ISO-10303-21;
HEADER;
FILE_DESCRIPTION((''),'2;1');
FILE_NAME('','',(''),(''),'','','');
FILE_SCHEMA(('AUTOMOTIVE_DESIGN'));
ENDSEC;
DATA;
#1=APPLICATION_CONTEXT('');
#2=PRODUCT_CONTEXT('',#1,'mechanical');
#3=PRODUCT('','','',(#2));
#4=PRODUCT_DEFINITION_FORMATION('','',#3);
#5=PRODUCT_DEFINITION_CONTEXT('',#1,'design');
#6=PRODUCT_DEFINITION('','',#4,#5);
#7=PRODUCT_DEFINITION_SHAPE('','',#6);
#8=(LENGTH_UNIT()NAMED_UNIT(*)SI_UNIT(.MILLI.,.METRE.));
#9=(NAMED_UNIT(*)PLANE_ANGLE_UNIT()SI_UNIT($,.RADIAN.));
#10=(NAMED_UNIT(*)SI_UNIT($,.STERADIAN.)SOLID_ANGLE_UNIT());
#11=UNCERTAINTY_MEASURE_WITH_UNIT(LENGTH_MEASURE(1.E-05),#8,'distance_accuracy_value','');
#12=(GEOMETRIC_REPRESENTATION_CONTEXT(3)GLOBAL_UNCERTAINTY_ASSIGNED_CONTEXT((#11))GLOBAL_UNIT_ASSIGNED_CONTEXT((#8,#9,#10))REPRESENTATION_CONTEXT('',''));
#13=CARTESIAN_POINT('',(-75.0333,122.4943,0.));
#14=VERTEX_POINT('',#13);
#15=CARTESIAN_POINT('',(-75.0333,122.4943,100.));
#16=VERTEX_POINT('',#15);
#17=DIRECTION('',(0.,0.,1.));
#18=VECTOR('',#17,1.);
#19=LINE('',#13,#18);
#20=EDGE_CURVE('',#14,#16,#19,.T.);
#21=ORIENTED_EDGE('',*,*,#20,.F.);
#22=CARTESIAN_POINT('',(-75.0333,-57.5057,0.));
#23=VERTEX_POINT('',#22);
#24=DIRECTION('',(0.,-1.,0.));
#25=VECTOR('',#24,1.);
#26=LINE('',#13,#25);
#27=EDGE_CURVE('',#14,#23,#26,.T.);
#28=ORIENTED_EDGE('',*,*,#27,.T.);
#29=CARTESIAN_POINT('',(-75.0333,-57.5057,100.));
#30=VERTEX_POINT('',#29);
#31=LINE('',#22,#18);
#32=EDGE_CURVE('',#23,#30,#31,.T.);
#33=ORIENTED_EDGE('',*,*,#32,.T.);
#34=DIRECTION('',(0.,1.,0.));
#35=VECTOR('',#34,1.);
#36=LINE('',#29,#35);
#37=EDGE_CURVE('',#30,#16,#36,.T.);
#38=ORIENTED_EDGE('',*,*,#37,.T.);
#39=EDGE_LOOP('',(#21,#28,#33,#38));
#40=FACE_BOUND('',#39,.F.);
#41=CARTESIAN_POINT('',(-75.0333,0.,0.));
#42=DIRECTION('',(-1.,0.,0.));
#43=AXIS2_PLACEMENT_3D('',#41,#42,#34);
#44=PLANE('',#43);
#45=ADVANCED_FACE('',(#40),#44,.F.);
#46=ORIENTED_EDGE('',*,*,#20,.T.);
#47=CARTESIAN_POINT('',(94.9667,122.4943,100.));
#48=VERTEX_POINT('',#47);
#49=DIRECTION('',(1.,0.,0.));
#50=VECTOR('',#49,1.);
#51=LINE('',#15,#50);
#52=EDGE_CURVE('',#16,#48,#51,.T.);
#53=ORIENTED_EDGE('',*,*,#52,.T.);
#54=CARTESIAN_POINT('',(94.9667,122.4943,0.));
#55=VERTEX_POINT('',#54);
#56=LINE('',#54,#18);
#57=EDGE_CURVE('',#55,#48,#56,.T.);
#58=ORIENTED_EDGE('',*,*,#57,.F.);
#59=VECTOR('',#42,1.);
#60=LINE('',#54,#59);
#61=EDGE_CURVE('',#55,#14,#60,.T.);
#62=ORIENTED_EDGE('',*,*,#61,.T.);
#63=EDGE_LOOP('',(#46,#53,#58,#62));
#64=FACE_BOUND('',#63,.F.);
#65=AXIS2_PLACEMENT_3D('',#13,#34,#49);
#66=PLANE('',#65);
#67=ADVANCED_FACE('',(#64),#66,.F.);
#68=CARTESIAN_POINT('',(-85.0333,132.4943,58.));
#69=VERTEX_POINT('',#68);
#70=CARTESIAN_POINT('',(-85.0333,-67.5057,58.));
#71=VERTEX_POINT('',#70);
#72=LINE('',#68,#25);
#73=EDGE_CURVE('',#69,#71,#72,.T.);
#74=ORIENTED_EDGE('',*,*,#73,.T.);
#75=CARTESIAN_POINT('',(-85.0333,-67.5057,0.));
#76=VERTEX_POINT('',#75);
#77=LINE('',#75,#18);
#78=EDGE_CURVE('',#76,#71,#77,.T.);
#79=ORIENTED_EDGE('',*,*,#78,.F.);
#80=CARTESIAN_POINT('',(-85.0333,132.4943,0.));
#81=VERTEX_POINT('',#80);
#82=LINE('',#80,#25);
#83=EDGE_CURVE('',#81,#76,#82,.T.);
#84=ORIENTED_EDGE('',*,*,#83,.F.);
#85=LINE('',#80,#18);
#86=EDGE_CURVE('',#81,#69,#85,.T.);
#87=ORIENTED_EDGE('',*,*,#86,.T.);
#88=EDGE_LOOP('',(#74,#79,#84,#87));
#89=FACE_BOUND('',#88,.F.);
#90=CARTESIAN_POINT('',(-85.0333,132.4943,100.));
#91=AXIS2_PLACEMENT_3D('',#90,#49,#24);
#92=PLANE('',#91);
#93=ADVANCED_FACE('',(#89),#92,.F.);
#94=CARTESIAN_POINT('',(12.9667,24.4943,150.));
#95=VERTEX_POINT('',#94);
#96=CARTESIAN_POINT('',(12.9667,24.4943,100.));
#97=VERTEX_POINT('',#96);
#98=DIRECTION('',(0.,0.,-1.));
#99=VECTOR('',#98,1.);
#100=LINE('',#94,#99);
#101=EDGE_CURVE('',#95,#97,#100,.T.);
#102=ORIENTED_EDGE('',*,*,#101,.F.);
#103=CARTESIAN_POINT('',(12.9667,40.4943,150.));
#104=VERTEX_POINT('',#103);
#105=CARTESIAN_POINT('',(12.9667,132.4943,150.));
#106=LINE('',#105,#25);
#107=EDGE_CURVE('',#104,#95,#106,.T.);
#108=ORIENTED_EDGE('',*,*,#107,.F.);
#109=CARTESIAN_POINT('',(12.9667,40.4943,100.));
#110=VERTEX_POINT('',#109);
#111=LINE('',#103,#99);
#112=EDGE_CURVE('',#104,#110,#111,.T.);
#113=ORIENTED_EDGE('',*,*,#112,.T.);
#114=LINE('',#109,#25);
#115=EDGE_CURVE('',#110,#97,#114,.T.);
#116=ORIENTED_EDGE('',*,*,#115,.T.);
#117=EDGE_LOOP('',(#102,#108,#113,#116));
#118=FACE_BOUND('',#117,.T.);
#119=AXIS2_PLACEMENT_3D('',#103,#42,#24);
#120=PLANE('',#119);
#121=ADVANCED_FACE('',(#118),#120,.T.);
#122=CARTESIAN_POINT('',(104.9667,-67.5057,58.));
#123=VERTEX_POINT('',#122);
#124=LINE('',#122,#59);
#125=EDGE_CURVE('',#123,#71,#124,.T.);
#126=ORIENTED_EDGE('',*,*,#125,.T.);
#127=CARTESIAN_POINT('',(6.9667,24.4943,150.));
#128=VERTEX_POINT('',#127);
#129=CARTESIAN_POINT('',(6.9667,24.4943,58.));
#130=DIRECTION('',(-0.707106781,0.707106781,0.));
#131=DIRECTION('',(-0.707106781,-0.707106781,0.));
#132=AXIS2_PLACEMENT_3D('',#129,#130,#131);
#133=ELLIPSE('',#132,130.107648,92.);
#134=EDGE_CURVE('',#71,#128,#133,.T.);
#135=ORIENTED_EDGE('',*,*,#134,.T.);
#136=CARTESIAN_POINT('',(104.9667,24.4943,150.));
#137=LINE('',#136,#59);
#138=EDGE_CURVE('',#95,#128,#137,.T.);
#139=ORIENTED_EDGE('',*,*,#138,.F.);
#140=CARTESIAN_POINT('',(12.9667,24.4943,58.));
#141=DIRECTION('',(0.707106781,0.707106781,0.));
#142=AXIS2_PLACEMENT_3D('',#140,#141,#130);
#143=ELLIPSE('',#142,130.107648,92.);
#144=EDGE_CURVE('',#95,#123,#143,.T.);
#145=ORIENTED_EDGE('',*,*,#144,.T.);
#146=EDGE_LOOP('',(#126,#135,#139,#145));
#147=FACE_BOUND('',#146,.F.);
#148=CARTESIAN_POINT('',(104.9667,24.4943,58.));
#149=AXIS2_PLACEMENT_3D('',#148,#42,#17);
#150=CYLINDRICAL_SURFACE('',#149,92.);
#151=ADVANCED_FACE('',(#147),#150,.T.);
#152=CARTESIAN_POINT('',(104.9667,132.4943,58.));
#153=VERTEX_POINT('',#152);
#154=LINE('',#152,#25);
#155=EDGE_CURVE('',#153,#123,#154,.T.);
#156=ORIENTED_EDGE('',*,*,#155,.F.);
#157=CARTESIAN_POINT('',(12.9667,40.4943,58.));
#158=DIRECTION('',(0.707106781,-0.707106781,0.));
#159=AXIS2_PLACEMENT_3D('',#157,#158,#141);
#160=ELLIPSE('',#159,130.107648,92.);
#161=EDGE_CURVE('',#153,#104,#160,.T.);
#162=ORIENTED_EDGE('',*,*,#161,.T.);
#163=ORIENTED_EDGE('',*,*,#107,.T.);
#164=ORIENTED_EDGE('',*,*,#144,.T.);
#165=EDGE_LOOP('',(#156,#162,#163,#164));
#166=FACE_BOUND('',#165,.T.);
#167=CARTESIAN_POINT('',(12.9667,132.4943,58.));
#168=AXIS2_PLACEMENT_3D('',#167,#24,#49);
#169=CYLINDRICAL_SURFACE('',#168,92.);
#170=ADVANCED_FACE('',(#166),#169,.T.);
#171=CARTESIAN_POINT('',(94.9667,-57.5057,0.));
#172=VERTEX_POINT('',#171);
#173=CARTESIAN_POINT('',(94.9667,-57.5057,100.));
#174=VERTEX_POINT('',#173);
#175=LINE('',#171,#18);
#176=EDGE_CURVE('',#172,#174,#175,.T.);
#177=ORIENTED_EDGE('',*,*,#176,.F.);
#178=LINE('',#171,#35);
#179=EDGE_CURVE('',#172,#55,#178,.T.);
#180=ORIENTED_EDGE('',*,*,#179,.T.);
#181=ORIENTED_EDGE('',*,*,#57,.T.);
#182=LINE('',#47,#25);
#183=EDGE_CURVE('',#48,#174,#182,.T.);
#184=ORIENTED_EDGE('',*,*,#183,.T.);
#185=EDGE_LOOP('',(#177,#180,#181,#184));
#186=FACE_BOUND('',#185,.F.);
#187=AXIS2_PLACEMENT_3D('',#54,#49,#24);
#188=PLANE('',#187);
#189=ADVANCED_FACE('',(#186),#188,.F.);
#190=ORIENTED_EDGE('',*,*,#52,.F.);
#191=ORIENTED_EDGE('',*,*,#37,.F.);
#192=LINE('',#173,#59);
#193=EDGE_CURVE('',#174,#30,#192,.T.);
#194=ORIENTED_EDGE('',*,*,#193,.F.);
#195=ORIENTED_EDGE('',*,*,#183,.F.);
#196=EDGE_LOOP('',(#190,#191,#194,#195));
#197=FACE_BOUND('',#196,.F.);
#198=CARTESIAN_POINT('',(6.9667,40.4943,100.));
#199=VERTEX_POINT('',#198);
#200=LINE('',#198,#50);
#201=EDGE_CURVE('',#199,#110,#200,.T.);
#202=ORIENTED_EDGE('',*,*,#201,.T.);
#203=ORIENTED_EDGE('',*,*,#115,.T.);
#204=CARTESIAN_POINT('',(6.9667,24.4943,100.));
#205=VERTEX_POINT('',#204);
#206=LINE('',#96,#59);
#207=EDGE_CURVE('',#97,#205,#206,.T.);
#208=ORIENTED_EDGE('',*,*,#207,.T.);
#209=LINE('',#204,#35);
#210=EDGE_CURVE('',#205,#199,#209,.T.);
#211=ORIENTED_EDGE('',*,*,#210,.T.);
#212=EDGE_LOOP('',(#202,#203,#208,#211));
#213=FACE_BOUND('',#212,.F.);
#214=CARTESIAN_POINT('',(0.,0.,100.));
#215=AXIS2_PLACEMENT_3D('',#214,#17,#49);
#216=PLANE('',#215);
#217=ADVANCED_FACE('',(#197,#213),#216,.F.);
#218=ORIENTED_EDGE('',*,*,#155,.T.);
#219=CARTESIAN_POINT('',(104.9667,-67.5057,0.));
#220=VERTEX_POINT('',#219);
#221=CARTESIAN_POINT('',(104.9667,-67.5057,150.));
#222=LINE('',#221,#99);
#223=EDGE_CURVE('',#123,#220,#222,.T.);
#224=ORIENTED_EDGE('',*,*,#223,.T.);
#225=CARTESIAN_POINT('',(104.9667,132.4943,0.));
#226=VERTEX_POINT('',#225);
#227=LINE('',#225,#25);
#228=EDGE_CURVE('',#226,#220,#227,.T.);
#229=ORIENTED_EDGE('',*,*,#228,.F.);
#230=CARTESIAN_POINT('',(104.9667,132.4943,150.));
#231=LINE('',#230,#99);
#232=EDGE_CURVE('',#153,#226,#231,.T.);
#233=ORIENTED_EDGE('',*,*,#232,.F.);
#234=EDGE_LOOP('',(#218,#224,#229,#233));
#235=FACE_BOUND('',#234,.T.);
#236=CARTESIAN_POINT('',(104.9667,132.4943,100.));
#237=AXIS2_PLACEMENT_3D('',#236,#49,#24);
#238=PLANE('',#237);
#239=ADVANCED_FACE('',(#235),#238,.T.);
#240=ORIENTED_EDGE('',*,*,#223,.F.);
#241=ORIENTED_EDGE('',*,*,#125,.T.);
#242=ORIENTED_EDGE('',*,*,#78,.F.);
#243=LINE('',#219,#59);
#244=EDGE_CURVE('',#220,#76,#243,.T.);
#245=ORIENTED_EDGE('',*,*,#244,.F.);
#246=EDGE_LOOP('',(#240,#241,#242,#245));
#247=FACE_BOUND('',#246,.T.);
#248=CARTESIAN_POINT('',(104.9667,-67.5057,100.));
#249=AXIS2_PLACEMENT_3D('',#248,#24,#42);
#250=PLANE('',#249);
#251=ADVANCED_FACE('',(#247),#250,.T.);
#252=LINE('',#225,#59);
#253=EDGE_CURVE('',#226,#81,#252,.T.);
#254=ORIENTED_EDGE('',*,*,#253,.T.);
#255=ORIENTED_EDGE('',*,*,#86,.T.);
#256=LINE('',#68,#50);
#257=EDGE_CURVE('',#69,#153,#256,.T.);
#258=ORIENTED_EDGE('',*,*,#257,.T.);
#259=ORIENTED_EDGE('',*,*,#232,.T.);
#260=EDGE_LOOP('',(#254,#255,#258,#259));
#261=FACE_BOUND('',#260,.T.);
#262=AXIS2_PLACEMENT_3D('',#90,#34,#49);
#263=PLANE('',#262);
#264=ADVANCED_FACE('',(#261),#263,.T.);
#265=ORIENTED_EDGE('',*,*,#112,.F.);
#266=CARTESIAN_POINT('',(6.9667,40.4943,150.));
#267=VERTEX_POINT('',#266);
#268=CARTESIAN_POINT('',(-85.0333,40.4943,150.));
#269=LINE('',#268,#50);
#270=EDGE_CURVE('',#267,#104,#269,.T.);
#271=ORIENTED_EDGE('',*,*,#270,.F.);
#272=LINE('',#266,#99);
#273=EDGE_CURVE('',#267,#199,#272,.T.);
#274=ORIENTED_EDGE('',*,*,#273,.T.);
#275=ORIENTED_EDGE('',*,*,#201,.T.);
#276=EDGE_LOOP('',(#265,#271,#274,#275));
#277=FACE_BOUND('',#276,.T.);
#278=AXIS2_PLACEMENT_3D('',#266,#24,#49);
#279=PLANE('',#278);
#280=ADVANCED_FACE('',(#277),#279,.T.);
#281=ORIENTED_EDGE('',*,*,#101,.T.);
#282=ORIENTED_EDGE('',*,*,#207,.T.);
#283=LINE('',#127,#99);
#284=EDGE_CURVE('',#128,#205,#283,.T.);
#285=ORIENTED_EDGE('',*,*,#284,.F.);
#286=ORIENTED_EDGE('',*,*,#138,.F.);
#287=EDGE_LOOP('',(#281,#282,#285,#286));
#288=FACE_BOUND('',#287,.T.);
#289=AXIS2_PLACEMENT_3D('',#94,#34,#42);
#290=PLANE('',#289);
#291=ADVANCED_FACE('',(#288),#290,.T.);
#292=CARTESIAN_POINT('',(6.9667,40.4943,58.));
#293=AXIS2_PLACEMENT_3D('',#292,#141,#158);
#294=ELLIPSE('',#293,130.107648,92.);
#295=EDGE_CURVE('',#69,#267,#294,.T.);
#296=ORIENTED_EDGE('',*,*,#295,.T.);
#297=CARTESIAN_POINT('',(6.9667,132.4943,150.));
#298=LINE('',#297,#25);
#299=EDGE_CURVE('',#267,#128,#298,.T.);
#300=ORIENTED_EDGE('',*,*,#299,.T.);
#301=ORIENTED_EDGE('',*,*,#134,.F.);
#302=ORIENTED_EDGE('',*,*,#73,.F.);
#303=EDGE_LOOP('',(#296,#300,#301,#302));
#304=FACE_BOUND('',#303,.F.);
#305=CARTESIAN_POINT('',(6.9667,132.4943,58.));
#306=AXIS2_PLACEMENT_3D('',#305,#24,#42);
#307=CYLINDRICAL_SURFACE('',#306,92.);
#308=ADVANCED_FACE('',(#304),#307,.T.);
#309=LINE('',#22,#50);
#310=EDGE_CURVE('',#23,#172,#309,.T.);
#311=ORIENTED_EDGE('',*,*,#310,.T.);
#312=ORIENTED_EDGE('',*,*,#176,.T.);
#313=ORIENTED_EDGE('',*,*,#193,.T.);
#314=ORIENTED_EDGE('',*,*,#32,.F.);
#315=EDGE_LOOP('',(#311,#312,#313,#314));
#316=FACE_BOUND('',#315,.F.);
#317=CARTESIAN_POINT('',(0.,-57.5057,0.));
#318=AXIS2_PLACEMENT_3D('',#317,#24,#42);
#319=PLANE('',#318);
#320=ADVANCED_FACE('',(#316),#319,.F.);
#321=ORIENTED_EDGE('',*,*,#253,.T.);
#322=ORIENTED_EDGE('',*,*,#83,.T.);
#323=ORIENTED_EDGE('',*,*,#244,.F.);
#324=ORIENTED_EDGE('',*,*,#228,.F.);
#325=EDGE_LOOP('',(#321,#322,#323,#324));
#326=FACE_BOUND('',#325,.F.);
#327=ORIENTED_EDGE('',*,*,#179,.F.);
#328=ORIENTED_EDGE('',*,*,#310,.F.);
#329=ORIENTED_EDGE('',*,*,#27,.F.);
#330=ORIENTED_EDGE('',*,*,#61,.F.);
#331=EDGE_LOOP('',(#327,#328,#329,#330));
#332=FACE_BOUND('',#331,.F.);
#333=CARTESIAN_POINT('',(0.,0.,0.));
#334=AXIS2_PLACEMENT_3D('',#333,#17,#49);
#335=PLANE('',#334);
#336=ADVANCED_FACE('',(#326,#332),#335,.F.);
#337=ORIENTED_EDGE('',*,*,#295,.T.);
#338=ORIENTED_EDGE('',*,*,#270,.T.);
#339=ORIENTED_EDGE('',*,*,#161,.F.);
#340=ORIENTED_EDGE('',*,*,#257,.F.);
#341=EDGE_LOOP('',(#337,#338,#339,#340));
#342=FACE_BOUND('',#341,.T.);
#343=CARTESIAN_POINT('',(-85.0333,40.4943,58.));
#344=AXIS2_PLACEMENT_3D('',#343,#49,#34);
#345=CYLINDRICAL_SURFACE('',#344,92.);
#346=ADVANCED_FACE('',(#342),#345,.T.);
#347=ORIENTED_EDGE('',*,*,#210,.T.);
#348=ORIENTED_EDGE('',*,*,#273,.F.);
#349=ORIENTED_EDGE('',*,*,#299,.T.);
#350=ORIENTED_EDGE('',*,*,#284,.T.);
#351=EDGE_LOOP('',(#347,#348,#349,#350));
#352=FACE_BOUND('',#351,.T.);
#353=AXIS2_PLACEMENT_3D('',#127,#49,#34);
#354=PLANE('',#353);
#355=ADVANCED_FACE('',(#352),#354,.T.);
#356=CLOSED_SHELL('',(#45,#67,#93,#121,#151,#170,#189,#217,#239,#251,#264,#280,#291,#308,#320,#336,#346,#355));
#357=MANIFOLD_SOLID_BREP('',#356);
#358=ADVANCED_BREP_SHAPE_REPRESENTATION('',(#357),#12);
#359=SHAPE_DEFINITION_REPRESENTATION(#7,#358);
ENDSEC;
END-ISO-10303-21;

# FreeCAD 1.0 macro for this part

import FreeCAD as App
import Part
import Sketcher


def edges_at(feature, points):
    """Names of the edges that pass closest to the given points."""
    edges = feature.Shape.Edges
    near = lambda p: min(range(len(edges)), key=lambda i: edges[i].distToShape(Part.Vertex(*p))[0])
    return sorted({f"Edge{near(p) + 1}" for p in points})

doc = App.newDocument("Part")
params = doc.addObject("Spreadsheet::Sheet", "Params")
for row, (alias, value) in enumerate([
    ("sketch1_width", "170 mm"),
    ("sketch1_height", "180 mm"),
    ("pad1_length", "100 mm"),
    ("sketch2_width", "190 mm"),
    ("sketch2_height", "200 mm"),
    ("pad2_length", "50 mm"),
    ("fillet_radius", "92 mm"),
    ("sketch3_width", "6 mm"),
    ("sketch3_height", "16 mm"),
    ("pocket1_length", "50 mm"),
], start=1):
    params.set(f"A{row}", alias)
    params.set(f"B{row}", "=" + value)
    params.setAlias(f"B{row}", alias)

body = doc.addObject("PartDesign::Body", "Body")

sketch1 = body.newObject("Sketcher::SketchObject", "Sketch")
sketch1.AttachmentSupport = (doc.getObject("XY_Plane"), [""])
sketch1.MapMode = "FlatFace"
sketch1.addGeometry(Part.LineSegment(App.Vector(-85, 132, 0), App.Vector(-85, -68, 0)), False)
sketch1.addGeometry(Part.LineSegment(App.Vector(-85, -68, 0), App.Vector(105, -68, 0)), False)
sketch1.addGeometry(Part.LineSegment(App.Vector(105, -68, 0), App.Vector(105, 132, 0)), False)
sketch1.addGeometry(Part.LineSegment(App.Vector(105, 132, 0), App.Vector(-85, 132, 0)), False)
sketch1.addGeometry(Part.LineSegment(App.Vector(-75, 122, 0), App.Vector(95, 122, 0)), False)
sketch1.addGeometry(Part.LineSegment(App.Vector(95, 122, 0), App.Vector(95, -58, 0)), False)
sketch1.addGeometry(Part.LineSegment(App.Vector(95, -58, 0), App.Vector(-75, -58, 0)), False)
sketch1.addGeometry(Part.LineSegment(App.Vector(-75, -58, 0), App.Vector(-75, 122, 0)), False)
sketch1.addConstraint(Sketcher.Constraint("Coincident", 0, 2, 1, 1))
sketch1.addConstraint(Sketcher.Constraint("Coincident", 1, 2, 2, 1))
sketch1.addConstraint(Sketcher.Constraint("Coincident", 2, 2, 3, 1))
sketch1.addConstraint(Sketcher.Constraint("Coincident", 3, 2, 0, 1))
sketch1.addConstraint(Sketcher.Constraint("Coincident", 4, 2, 5, 1))
sketch1.addConstraint(Sketcher.Constraint("Coincident", 5, 2, 6, 1))
sketch1.addConstraint(Sketcher.Constraint("Coincident", 6, 2, 7, 1))
sketch1.addConstraint(Sketcher.Constraint("Coincident", 7, 2, 4, 1))
sketch1.addConstraint(Sketcher.Constraint("Vertical", 0))
sketch1.addConstraint(Sketcher.Constraint("Horizontal", 1))
sketch1.addConstraint(Sketcher.Constraint("Vertical", 2))
sketch1.addConstraint(Sketcher.Constraint("Horizontal", 3))
sketch1.addConstraint(Sketcher.Constraint("Horizontal", 4))
sketch1.addConstraint(Sketcher.Constraint("Vertical", 5))
sketch1.addConstraint(Sketcher.Constraint("Horizontal", 6))
sketch1.addConstraint(Sketcher.Constraint("Vertical", 7))
sketch1.addConstraint(Sketcher.Constraint("DistanceX", 4, 1, 4, 2, 170.0))
sketch1.addConstraint(Sketcher.Constraint("DistanceY", 5, 2, 5, 1, 180.0))
sketch1.addConstraint(Sketcher.Constraint("DistanceX", 4, 2, 2, 2, 10.0))
sketch1.addConstraint(Sketcher.Constraint("DistanceY", 4, 2, 2, 2, 10.0))
sketch1.addConstraint(Sketcher.Constraint("DistanceX", 3, 2, 4, 2, 180.0))
sketch1.addConstraint(Sketcher.Constraint("DistanceY", 1, 2, 5, 2, 10.0))
sketch1.addConstraint(Sketcher.Constraint("DistanceX", 0, 2, -1, 1, 85.0333))
sketch1.addConstraint(Sketcher.Constraint("DistanceY", 0, 2, -1, 1, 67.5057))
sketch1.setExpression("Constraints[16]", "Params.sketch1_width")
sketch1.setExpression("Constraints[17]", "Params.sketch1_height")
pad1 = body.newObject("PartDesign::Pad", "Pad")
pad1.Profile = sketch1
pad1.setExpression("Length", "Params.pad1_length")

sketch2 = body.newObject("Sketcher::SketchObject", "Sketch001")
sketch2.AttachmentSupport = (doc.getObject("XY_Plane"), [""])
sketch2.MapMode = "FlatFace"
sketch2.AttachmentOffset = App.Placement(App.Vector(0, 0, 100), App.Rotation())
sketch2.addGeometry(Part.LineSegment(App.Vector(105, 132, 0), App.Vector(-85, 132, 0)), False)
sketch2.addGeometry(Part.LineSegment(App.Vector(-85, 132, 0), App.Vector(-85, -68, 0)), False)
sketch2.addGeometry(Part.LineSegment(App.Vector(-85, -68, 0), App.Vector(105, -68, 0)), False)
sketch2.addGeometry(Part.LineSegment(App.Vector(105, -68, 0), App.Vector(105, 132, 0)), False)
sketch2.addConstraint(Sketcher.Constraint("Coincident", 0, 2, 1, 1))
sketch2.addConstraint(Sketcher.Constraint("Coincident", 1, 2, 2, 1))
sketch2.addConstraint(Sketcher.Constraint("Coincident", 2, 2, 3, 1))
sketch2.addConstraint(Sketcher.Constraint("Coincident", 3, 2, 0, 1))
sketch2.addConstraint(Sketcher.Constraint("Horizontal", 0))
sketch2.addConstraint(Sketcher.Constraint("Vertical", 1))
sketch2.addConstraint(Sketcher.Constraint("Horizontal", 2))
sketch2.addConstraint(Sketcher.Constraint("Vertical", 3))
sketch2.addConstraint(Sketcher.Constraint("DistanceX", 0, 2, 0, 1, 190.0))
sketch2.addConstraint(Sketcher.Constraint("DistanceY", 1, 2, 1, 1, 200.0))
sketch2.addConstraint(Sketcher.Constraint("DistanceX", 0, 2, -1, 1, 85.0333))
sketch2.addConstraint(Sketcher.Constraint("DistanceY", -1, 1, 0, 2, 132.4943))
sketch2.setExpression("Constraints[8]", "Params.sketch2_width")
sketch2.setExpression("Constraints[9]", "Params.sketch2_height")
pad2 = body.newObject("PartDesign::Pad", "Pad001")
pad2.Profile = sketch2
pad2.setExpression("Length", "Params.pad2_length")
doc.recompute()

fillet = body.newObject("PartDesign::Fillet", "Fillet")
fillet.Base = (pad2, edges_at(pad2, [
    (-85.033, 32.494, 150),
    (9.967, 132.494, 150),
    (9.967, -67.506, 150),
    (104.967, 32.494, 150),
]))
fillet.setExpression("Radius", "Params.fillet_radius")

sketch3 = body.newObject("Sketcher::SketchObject", "Sketch002")
sketch3.AttachmentSupport = (doc.getObject("XY_Plane"), [""])
sketch3.MapMode = "FlatFace"
sketch3.AttachmentOffset = App.Placement(App.Vector(0, 0, 150), App.Rotation())
sketch3.addGeometry(Part.LineSegment(App.Vector(7, 40, 0), App.Vector(7, 24, 0)), False)
sketch3.addGeometry(Part.LineSegment(App.Vector(7, 24, 0), App.Vector(13, 24, 0)), False)
sketch3.addGeometry(Part.LineSegment(App.Vector(13, 24, 0), App.Vector(13, 40, 0)), False)
sketch3.addGeometry(Part.LineSegment(App.Vector(13, 40, 0), App.Vector(7, 40, 0)), False)
sketch3.addConstraint(Sketcher.Constraint("Coincident", 0, 2, 1, 1))
sketch3.addConstraint(Sketcher.Constraint("Coincident", 1, 2, 2, 1))
sketch3.addConstraint(Sketcher.Constraint("Coincident", 2, 2, 3, 1))
sketch3.addConstraint(Sketcher.Constraint("Coincident", 3, 2, 0, 1))
sketch3.addConstraint(Sketcher.Constraint("Vertical", 0))
sketch3.addConstraint(Sketcher.Constraint("Horizontal", 1))
sketch3.addConstraint(Sketcher.Constraint("Vertical", 2))
sketch3.addConstraint(Sketcher.Constraint("Horizontal", 3))
sketch3.addConstraint(Sketcher.Constraint("DistanceX", 1, 1, 1, 2, 6.0))
sketch3.addConstraint(Sketcher.Constraint("DistanceY", 0, 2, 0, 1, 16.0))
sketch3.addConstraint(Sketcher.Constraint("DistanceX", -1, 1, 0, 2, 6.9667))
sketch3.addConstraint(Sketcher.Constraint("DistanceY", -1, 1, 0, 2, 24.4943))
sketch3.setExpression("Constraints[8]", "Params.sketch3_width")
sketch3.setExpression("Constraints[9]", "Params.sketch3_height")
pocket1 = body.newObject("PartDesign::Pocket", "Pocket")
pocket1.Profile = sketch3
pocket1.setExpression("Length", "Params.pocket1_length")

doc.recompute()
